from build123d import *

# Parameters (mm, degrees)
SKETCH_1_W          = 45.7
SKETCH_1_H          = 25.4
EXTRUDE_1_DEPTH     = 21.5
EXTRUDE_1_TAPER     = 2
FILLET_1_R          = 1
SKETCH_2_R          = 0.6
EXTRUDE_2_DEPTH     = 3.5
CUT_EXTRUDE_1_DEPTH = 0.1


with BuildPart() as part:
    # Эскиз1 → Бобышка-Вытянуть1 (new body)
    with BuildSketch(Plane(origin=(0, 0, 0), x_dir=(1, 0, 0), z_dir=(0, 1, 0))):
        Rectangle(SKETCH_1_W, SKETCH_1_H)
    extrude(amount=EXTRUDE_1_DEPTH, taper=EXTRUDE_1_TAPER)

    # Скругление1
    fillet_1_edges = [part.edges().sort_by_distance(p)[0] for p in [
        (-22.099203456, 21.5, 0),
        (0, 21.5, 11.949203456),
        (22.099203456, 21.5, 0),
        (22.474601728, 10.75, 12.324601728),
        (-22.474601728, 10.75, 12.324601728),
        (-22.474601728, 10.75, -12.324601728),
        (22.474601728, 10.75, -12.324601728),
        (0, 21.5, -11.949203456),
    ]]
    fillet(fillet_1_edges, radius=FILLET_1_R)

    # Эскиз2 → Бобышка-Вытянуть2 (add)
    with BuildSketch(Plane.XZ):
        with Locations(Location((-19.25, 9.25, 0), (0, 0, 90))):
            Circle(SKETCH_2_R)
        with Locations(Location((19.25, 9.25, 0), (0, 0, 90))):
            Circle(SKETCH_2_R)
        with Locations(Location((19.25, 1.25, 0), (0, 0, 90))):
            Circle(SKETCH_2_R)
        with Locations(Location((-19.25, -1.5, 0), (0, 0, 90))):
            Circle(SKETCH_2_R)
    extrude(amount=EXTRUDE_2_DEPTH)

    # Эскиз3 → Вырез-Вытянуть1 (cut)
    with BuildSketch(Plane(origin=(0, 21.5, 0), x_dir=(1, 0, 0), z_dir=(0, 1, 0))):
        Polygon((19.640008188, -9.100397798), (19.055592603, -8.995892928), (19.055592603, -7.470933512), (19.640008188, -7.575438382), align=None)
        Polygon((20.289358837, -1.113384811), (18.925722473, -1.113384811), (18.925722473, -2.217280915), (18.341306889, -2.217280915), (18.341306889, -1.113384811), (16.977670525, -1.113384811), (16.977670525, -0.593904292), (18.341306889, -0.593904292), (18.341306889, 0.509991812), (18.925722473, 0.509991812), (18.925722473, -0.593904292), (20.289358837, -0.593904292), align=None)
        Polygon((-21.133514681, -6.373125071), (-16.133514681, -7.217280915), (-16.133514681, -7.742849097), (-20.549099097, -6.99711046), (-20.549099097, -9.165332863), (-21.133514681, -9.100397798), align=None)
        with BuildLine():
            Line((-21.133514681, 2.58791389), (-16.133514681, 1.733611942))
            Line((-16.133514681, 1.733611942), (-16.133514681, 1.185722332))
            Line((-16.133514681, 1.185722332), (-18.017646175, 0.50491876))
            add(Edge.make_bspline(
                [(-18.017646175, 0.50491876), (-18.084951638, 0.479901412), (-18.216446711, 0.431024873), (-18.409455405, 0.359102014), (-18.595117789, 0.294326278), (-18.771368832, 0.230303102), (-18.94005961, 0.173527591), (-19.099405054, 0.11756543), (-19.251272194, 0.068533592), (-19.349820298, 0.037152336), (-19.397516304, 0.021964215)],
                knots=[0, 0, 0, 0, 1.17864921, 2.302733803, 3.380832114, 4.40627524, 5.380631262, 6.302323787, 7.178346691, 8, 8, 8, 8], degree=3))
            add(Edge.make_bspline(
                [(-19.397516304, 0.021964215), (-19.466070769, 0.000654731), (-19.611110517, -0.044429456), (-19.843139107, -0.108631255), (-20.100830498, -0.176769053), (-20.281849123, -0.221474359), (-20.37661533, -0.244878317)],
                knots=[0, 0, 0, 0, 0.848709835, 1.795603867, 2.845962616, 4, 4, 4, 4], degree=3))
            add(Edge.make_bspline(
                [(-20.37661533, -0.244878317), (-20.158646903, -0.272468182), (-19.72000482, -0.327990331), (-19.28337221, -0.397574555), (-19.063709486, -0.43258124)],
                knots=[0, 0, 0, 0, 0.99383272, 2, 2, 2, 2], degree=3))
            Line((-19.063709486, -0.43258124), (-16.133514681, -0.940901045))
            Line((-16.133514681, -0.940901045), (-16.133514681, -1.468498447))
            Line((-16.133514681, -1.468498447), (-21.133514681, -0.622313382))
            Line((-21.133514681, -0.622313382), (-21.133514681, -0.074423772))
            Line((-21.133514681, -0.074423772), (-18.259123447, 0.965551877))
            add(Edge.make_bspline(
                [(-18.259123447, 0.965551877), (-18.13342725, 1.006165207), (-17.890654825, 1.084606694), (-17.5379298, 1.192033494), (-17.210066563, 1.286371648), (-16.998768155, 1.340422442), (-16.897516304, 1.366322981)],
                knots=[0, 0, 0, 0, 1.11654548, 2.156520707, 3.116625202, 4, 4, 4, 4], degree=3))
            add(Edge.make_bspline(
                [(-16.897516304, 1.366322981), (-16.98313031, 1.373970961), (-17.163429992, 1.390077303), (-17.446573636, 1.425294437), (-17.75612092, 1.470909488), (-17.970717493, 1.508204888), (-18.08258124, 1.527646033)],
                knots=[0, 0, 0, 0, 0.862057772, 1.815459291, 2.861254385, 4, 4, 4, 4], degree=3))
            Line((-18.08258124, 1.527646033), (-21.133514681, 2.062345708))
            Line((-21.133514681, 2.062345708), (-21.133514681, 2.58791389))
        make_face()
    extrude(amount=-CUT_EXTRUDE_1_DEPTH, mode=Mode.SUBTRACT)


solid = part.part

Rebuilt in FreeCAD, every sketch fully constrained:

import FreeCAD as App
import Part
import Sketcher
Q = App.Units.Quantity


def edges_at(feature, points):
    """Names of the edges that pass closest to the given points."""
    edges = feature.Shape.Edges
    near = lambda p: min(range(len(edges)), key=lambda i: edges[i].distToShape(Part.Vertex(*p))[0])
    return sorted({f"Edge{near(p) + 1}" for p in points})


def add_polygon(sketch, points):
    """Adds a closed chain of lines whose ends are joined by coincident constraints."""
    first, n = sketch.GeometryCount, len(points)
    for a, b in zip(points, points[1:] + points[:1]):
        sketch.addGeometry(Part.LineSegment(App.Vector(*a, 0), App.Vector(*b, 0)), False)
    for i in range(n):
        sketch.addConstraint(Sketcher.Constraint("Coincident", first + i, 2, first + (i + 1) % n, 1))

doc = App.newDocument("Part")
params = doc.addObject("Spreadsheet::Sheet", "Params")
for row, (alias, value) in enumerate([
    ("sketch1_width", "45.7 mm"),
    ("sketch1_height", "25.4 mm"),
    ("pad1_length", "21.5 mm"),
    ("pad1_taper", "-2 deg"),
    ("fillet_radius", "1 mm"),
    ("sketch2_diameter", "1.2 mm"),
    ("pad2_length", "3.5 mm"),
    ("pocket1_length", "0.1 mm"),
], start=1):
    params.set(f"A{row}", alias)
    params.set(f"B{row}", "=" + value)
    params.setAlias(f"B{row}", alias)

body = doc.addObject("PartDesign::Body", "Body")

sketch1 = body.newObject("Sketcher::SketchObject", "Sketch")
sketch1.AttachmentSupport = (doc.getObject("XZ_Plane"), [""])
sketch1.MapMode = "FlatFace"
add_polygon(sketch1, [(-23, -13), (-23, 13), (23, 13), (23, -13)])
sketch1.addConstraint([
    Sketcher.Constraint("Vertical", 0),
    Sketcher.Constraint("Horizontal", 1),
    Sketcher.Constraint("Vertical", 2),
    Sketcher.Constraint("Horizontal", 3),
    Sketcher.Constraint("Symmetric", 0, 2, 2, 2, -1, 1),
    Sketcher.Constraint("DistanceX", 1, 1, 1, 2, Q("45.7 mm")),
    Sketcher.Constraint("DistanceY", 0, 1, 0, 2, Q("25.4 mm")),
])
sketch1.setExpression("Constraints[9]", "Params.sketch1_width")
sketch1.setExpression("Constraints[10]", "Params.sketch1_height")
pad1 = body.newObject("PartDesign::Pad", "Pad")
pad1.Profile = sketch1
pad1.setExpression("Length", "Params.pad1_length")
pad1.Reversed = True
pad1.setExpression("TaperAngle", "Params.pad1_taper")
doc.recompute()

fillet = body.newObject("PartDesign::Fillet", "Fillet")
fillet.Base = (pad1, edges_at(pad1, [
    (-22.099, 21.5, 0),
    (0, 21.5, 11.949),
    (22.099, 21.5, 0),
    (22.475, 10.75, 12.325),
    (-22.475, 10.75, 12.325),
    (-22.475, 10.75, -12.325),
    (22.475, 10.75, -12.325),
    (0, 21.5, -11.949),
]))
fillet.setExpression("Radius", "Params.fillet_radius")

sketch2 = body.newObject("Sketcher::SketchObject", "Sketch001")
sketch2.AttachmentSupport = (doc.getObject("XZ_Plane"), [""])
sketch2.MapMode = "FlatFace"
sketch2.addGeometry([
    Part.Circle(App.Vector(-19.2, 9.2, 0), App.Vector(0, 0, 1), 0.6),
    Part.Circle(App.Vector(19.2, 9.2, 0), App.Vector(0, 0, 1), 0.6),
    Part.Circle(App.Vector(19.2, 1.2, 0), App.Vector(0, 0, 1), 0.6),
    Part.Circle(App.Vector(-19.2, -1.5, 0), App.Vector(0, 0, 1), 0.6),
], False)
sketch2.addConstraint([
    Sketcher.Constraint("Equal", 0, 1),
    Sketcher.Constraint("Equal", 1, 2),
    Sketcher.Constraint("Equal", 2, 3),
    Sketcher.Constraint("Symmetric", 0, 3, 1, 3, -2),
    Sketcher.Constraint("Vertical", 1, 3, 2, 3),
    Sketcher.Constraint("Vertical", 0, 3, 3, 3),
    Sketcher.Constraint("Diameter", 0, Q("1.2 mm")),
    Sketcher.Constraint("DistanceY", 2, 3, 1, 3, Q("8 mm")),
    Sketcher.Constraint("DistanceY", 3, 3, -1, 1, Q("1.5 mm")),
    Sketcher.Constraint("DistanceX", 0, 3, 1, 3, Q("38.5 mm")),
    Sketcher.Constraint("DistanceY", -1, 1, 0, 3, Q("9.25 mm")),
])
sketch2.setExpression("Constraints[6]", "Params.sketch2_diameter")
pad2 = body.newObject("PartDesign::Pad", "Pad001")
pad2.Profile = sketch2
pad2.setExpression("Length", "Params.pad2_length")

sketch3 = body.newObject("Sketcher::SketchObject", "Sketch002")
sketch3.AttachmentSupport = (doc.getObject("XZ_Plane"), [""])
sketch3.MapMode = "FlatFace"
sketch3.AttachmentOffset = App.Placement(App.Vector(0, 0, -21.5), App.Rotation())
add_polygon(sketch3, [(19.055593, 8.995893), (19.640008, 9.100398), (19.640008, 7.575438), (19.055593, 7.470934)])
add_polygon(sketch3, [(18.925722, 1.113385), (20.289359, 1.113385), (20.289359, 0.593904), (18.925722, 0.593904), (18.925722, -0.509992), (18.341307, -0.509992), (18.341307, 0.593904), (16.977671, 0.593904), (16.977671, 1.113385), (18.341307, 1.113385), (18.341307, 2.217281), (18.925722, 2.217281)])
add_polygon(sketch3, [(-16.133515, 7.217281), (-21.133515, 6.373125), (-21.133515, 9.100398), (-20.549099, 9.165333), (-20.549099, 6.99711), (-16.133515, 7.742849)])
sketch3.addGeometry(Part.LineSegment(App.Vector(-16.133515, -1.733612, 0), App.Vector(-21.133515, -2.587914, 0)), False)
sketch3.addGeometry(Part.LineSegment(App.Vector(-21.133515, -2.587914, 0), App.Vector(-21.133515, -2.062346, 0)), False)
sketch3.addGeometry(Part.LineSegment(App.Vector(-21.133515, -2.062346, 0), App.Vector(-18.082581, -1.527646, 0)), False)
sketch3.addGeometry(Part.BSplineCurve([App.Vector(-16.897516, -1.366323, 0), App.Vector(-16.98313, -1.373971, 0), App.Vector(-17.16343, -1.390077, 0), App.Vector(-17.446574, -1.425294, 0), App.Vector(-17.756121, -1.470909, 0), App.Vector(-17.970717, -1.508205, 0), App.Vector(-18.082581, -1.527646, 0)], [4, 1, 1, 1, 4], [0, 0.862057772, 1.815459291, 2.861254385, 4], False, 3, [1, 1, 1, 1, 1, 1, 1], False), False)
sketch3.addGeometry(Part.BSplineCurve([App.Vector(-18.259123, -0.965552, 0), App.Vector(-18.133427, -1.006165, 0), App.Vector(-17.890655, -1.084607, 0), App.Vector(-17.53793, -1.192033, 0), App.Vector(-17.210067, -1.286372, 0), App.Vector(-16.998768, -1.340422, 0), App.Vector(-16.897516, -1.366323, 0)], [4, 1, 1, 1, 4], [0, 1.11654548, 2.156520707, 3.116625202, 4], False, 3, [1, 1, 1, 1, 1, 1, 1], False), False)
sketch3.addGeometry(Part.LineSegment(App.Vector(-18.259123, -0.965552, 0), App.Vector(-21.133515, 0.074424, 0)), False)
sketch3.addGeometry(Part.LineSegment(App.Vector(-21.133515, 0.074424, 0), App.Vector(-21.133515, 0.622313, 0)), False)
sketch3.addGeometry(Part.LineSegment(App.Vector(-21.133515, 0.622313, 0), App.Vector(-16.133515, 1.468498, 0)), False)
sketch3.addGeometry(Part.LineSegment(App.Vector(-16.133515, 1.468498, 0), App.Vector(-16.133515, 0.940901, 0)), False)
sketch3.addGeometry(Part.LineSegment(App.Vector(-16.133515, 0.940901, 0), App.Vector(-19.063709, 0.432581, 0)), False)
sketch3.addGeometry(Part.BSplineCurve([App.Vector(-20.376615, 0.244878, 0), App.Vector(-20.158647, 0.272468, 0), App.Vector(-19.720005, 0.32799, 0), App.Vector(-19.283372, 0.397575, 0), App.Vector(-19.063709, 0.432581, 0)], [4, 1, 4], [0, 0.99383272, 2], False, 3, [1, 1, 1, 1, 1], False), False)
sketch3.addGeometry(Part.BSplineCurve([App.Vector(-19.397516, -0.021964, 0), App.Vector(-19.466071, -0.000655, 0), App.Vector(-19.611111, 0.044429, 0), App.Vector(-19.843139, 0.108631, 0), App.Vector(-20.10083, 0.176769, 0), App.Vector(-20.281849, 0.221474, 0), App.Vector(-20.376615, 0.244878, 0)], [4, 1, 1, 1, 4], [0, 0.848709835, 1.795603867, 2.845962616, 4], False, 3, [1, 1, 1, 1, 1, 1, 1], False), False)
sketch3.addGeometry(Part.BSplineCurve([App.Vector(-18.017646, -0.504919, 0), App.Vector(-18.084952, -0.479901, 0), App.Vector(-18.216447, -0.431025, 0), App.Vector(-18.409455, -0.359102, 0), App.Vector(-18.595118, -0.294326, 0), App.Vector(-18.771369, -0.230303, 0), App.Vector(-18.94006, -0.173528, 0), App.Vector(-19.099405, -0.117565, 0), App.Vector(-19.251272, -0.068534, 0), App.Vector(-19.34982, -0.037152, 0), App.Vector(-19.397516, -0.021964, 0)], [4, 1, 1, 1, 1, 1, 1, 1, 4], [0, 1.17864921, 2.302733803, 3.380832114, 4.40627524, 5.380631262, 6.302323787, 7.178346691, 8], False, 3, [1, 1, 1, 1, 1, 1, 1, 1, 1, 1, 1], False), False)
sketch3.addGeometry(Part.LineSegment(App.Vector(-18.017646, -0.504919, 0), App.Vector(-16.133515, -1.185722, 0)), False)
sketch3.addGeometry(Part.LineSegment(App.Vector(-16.133515, -1.185722, 0), App.Vector(-16.133515, -1.733612, 0)), False)
sketch3.addConstraint([
    Sketcher.Constraint("Block", 25),
    Sketcher.Constraint("Block", 26),
    Sketcher.Constraint("Block", 32),
    Sketcher.Constraint("Block", 33),
    Sketcher.Constraint("Block", 34),
    Sketcher.Constraint("Coincident", 22, 2, 23, 1),
    Sketcher.Constraint("Coincident", 23, 2, 24, 1),
    Sketcher.Constraint("Coincident", 24, 2, 25, 2),
    Sketcher.Constraint("Coincident", 26, 1, 27, 1),
    Sketcher.Constraint("Coincident", 27, 2, 28, 1),
    Sketcher.Constraint("Coincident", 28, 2, 29, 1),
    Sketcher.Constraint("Coincident", 29, 2, 30, 1),
    Sketcher.Constraint("Coincident", 30, 2, 31, 1),
    Sketcher.Constraint("Coincident", 31, 2, 32, 2),
    Sketcher.Constraint("Coincident", 34, 1, 35, 1),
    Sketcher.Constraint("Coincident", 35, 2, 36, 1),
    Sketcher.Constraint("Coincident", 36, 2, 22, 1),
    Sketcher.Constraint("Vertical", 1),
    Sketcher.Constraint("Vertical", 3),
    Sketcher.Constraint("Horizontal", 4),
    Sketcher.Constraint("Vertical", 5),
    Sketcher.Constraint("Horizontal", 6),
    Sketcher.Constraint("Vertical", 7),
    Sketcher.Constraint("Horizontal", 8),
    Sketcher.Constraint("Vertical", 9),
    Sketcher.Constraint("Horizontal", 10),
    Sketcher.Constraint("Vertical", 11),
    Sketcher.Constraint("Horizontal", 12),
    Sketcher.Constraint("Vertical", 13),
    Sketcher.Constraint("Horizontal", 14),
    Sketcher.Constraint("Vertical", 15),
    Sketcher.Constraint("Vertical", 17),
    Sketcher.Constraint("Vertical", 19),
    Sketcher.Constraint("Vertical", 21),
    Sketcher.Constraint("Vertical", 23),
    Sketcher.Constraint("Vertical", 28),
    Sketcher.Constraint("Vertical", 30),
    Sketcher.Constraint("Vertical", 36),
    Sketcher.Constraint("DistanceX", 17, 2, 20, 2, Q("5 mm")),
    Sketcher.Constraint("DistanceX", 22, 2, 21, 2, Q("5 mm")),
    Sketcher.Constraint("DistanceX", 28, 2, 29, 2, Q("5 mm")),
    Sketcher.Constraint("DistanceX", 23, 2, 29, 2, Q("5 mm")),
    Sketcher.Constraint("DistanceX", 23, 2, 35, 2, Q("5 mm")),
    Sketcher.Constraint("DistanceY", 1, 2, 1, 1, Q("1.524959 mm")),
    Sketcher.Constraint("DistanceY", 3, 1, 3, 2, Q("1.524959 mm")),
    Sketcher.Constraint("DistanceY", 5, 2, 5, 1, Q("0.519481 mm")),
    Sketcher.Constraint("DistanceY", 11, 1, 11, 2, Q("0.519481 mm")),
    Sketcher.Constraint("DistanceY", 21, 2, 21, 1, Q("0.525568 mm")),
    Sketcher.Constraint("DistanceY", 23, 1, 23, 2, Q("0.525568 mm")),
    Sketcher.Constraint("DistanceY", 28, 1, 28, 2, Q("0.54789 mm")),
    Sketcher.Constraint("DistanceY", 36, 2, 36, 1, Q("0.54789 mm")),
    Sketcher.Constraint("DistanceX", 18, 2, -1, 1, Q("20.549099 mm")),
    Sketcher.Constraint("DistanceY", -1, 1, 29, 2, Q("1.468498 mm")),
    Sketcher.Constraint("DistanceY", -1, 1, 30, 2, Q("0.940901 mm")),
    Sketcher.Constraint("DistanceY", 23, 2, 24, 2, Q("0.5347 mm")),
    Sketcher.Constraint("DistanceY", 27, 2, 16, 2, Q("6.298701 mm")),
    Sketcher.Constraint("Distance", 16, Q("5.070759 mm")),
    Sketcher.Constraint("Distance", 22, Q("5.072458 mm")),
    Sketcher.Constraint("Distance", 31, Q("2.973959 mm")),
    Sketcher.Constraint("DistanceX", 4, 1, 4, 2, Q("1.363636 mm")),
    Sketcher.Constraint("DistanceX", 6, 2, 6, 1, Q("1.363636 mm")),
    Sketcher.Constraint("DistanceX", 8, 2, 8, 1, Q("0.584416 mm")),
    Sketcher.Constraint("DistanceX", 10, 2, 10, 1, Q("1.363636 mm")),
    Sketcher.Constraint("DistanceX", 12, 1, 12, 2, Q("1.363636 mm")),
    Sketcher.Constraint("DistanceY", 7, 2, 7, 1, Q("1.103896 mm")),
    Sketcher.Constraint("DistanceY", 9, 1, 9, 2, Q("1.103896 mm")),
    Sketcher.Constraint("DistanceY", 13, 1, 13, 2, Q("1.103896 mm")),
    Sketcher.Constraint("DistanceY", 17, 1, 17, 2, Q("2.727273 mm")),
    Sketcher.Constraint("DistanceY", 19, 2, 19, 1, Q("2.168222 mm")),
    Sketcher.Constraint("DistanceX", -1, 1, 0, 2, Q("19.640008 mm")),
    Sketcher.Constraint("DistanceY", -1, 1, 1, 2, Q("7.575438 mm")),
    Sketcher.Constraint("DistanceX", -1, 1, 4, 2, Q("20.289359 mm")),
    Sketcher.Constraint("DistanceY", 7, 2, -1, 1, Q("0.509992 mm")),
    Sketcher.Constraint("DistanceY", -1, 1, 19, 2, Q("6.99711 mm")),
    Sketcher.Constraint("DistanceY", -1, 1, 20, 2, Q("7.742849 mm")),
    Sketcher.Constraint("DistanceY", 4, 2, 2, 2, Q("6.357549 mm")),
    Sketcher.Constraint("DistanceX", 6, 2, 2, 2, Q("0.12987 mm")),
])
pocket1 = body.newObject("PartDesign::Pocket", "Pocket")
pocket1.Profile = sketch3
pocket1.setExpression("Length", "Params.pocket1_length")
pocket1.Reversed = True

doc.recompute()
